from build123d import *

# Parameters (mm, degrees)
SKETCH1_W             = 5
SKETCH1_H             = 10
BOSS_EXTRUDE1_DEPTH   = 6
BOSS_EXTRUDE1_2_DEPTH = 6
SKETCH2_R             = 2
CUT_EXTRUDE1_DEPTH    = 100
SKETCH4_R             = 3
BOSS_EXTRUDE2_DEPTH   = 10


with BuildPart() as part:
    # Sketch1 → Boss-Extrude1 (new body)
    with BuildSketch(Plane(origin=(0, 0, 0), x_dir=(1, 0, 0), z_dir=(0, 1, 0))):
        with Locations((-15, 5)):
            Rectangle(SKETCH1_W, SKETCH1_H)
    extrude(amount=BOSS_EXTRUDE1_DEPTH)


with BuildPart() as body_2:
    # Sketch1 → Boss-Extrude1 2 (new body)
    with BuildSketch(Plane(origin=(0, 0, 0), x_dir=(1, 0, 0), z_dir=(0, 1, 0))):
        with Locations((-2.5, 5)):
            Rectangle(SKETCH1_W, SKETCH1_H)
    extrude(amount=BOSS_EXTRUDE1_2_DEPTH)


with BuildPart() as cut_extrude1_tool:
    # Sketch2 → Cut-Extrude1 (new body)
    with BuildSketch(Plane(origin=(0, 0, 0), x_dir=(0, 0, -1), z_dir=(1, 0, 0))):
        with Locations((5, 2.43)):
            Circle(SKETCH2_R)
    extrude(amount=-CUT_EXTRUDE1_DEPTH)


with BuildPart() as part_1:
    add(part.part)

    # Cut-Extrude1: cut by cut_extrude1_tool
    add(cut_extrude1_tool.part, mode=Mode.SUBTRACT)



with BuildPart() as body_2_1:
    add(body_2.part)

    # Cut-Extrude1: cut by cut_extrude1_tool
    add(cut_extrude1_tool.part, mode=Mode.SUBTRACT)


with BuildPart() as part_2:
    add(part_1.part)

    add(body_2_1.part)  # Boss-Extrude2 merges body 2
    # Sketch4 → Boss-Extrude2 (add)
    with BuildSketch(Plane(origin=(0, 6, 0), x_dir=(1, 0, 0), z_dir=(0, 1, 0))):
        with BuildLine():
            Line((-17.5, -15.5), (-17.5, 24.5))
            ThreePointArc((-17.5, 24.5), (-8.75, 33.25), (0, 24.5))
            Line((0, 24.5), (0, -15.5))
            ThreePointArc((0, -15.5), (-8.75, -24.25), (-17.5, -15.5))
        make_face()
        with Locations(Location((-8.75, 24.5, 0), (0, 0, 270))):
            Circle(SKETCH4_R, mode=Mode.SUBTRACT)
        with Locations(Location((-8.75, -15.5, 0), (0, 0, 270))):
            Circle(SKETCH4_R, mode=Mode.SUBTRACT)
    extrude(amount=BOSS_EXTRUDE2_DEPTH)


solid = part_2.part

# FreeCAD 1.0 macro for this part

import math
import FreeCAD as App
import Part
import Sketcher

V = App.Vector

doc = App.newDocument("Part")
body = doc.addObject("PartDesign::Body", "Body")

sketch1 = body.newObject("Sketcher::SketchObject", "Sketch")
sketch1.AttachmentSupport = (doc.getObject("XZ_Plane"), [""])
sketch1.MapMode = "FlatFace"
sketch1.addGeometry([
    Part.LineSegment(V(-18, -10, 0), V(-18, 0, 0)),
    Part.LineSegment(V(-18, 0, 0), V(-12, 0, 0)),
    Part.LineSegment(V(-12, 0, 0), V(-12, -10, 0)),
    Part.LineSegment(V(-12, -10, 0), V(-18, -10, 0)),
], False)
sketch1.addConstraint([
    Sketcher.Constraint("Coincident", 0, 2, 1, 1),
    Sketcher.Constraint("Coincident", 1, 2, 2, 1),
    Sketcher.Constraint("Coincident", 2, 2, 3, 1),
    Sketcher.Constraint("Coincident", 3, 2, 0, 1),
    Sketcher.Constraint("Vertical", 0),
    Sketcher.Constraint("Horizontal", 1),
    Sketcher.Constraint("Vertical", 2),
    Sketcher.Constraint("Horizontal", 3),
    Sketcher.Constraint("PointOnObject", 0, 2, -1),
    Sketcher.Constraint("DistanceX", 1, 1, 1, 2, 5.0),
    Sketcher.Constraint("DistanceY", 0, 1, 0, 2, 10.0),
    Sketcher.Constraint("DistanceX", 0, 2, -1, 1, 17.5),
])
pad1 = body.newObject("PartDesign::Pad", "Pad")
pad1.Profile = sketch1
pad1.Length = 6
pad1.Reversed = True
body2 = doc.addObject("PartDesign::Body", "Body001")

sketch2 = body2.newObject("Sketcher::SketchObject", "Sketch001")
sketch2.AttachmentSupport = (doc.getObject("XZ_Plane001"), [""])
sketch2.MapMode = "FlatFace"
sketch2.addGeometry([
    Part.LineSegment(V(-5, -10, 0), V(-5, 0, 0)),
    Part.LineSegment(V(-5, 0, 0), V(0, 0, 0)),
    Part.LineSegment(V(0, 0, 0), V(0, -10, 0)),
    Part.LineSegment(V(0, -10, 0), V(-5, -10, 0)),
], False)
sketch2.addConstraint([
    Sketcher.Constraint("Coincident", 0, 2, 1, 1),
    Sketcher.Constraint("Coincident", 1, 2, 2, 1),
    Sketcher.Constraint("Coincident", 2, 2, 3, 1),
    Sketcher.Constraint("Coincident", 3, 2, 0, 1),
    Sketcher.Constraint("Vertical", 0),
    Sketcher.Constraint("Horizontal", 1),
    Sketcher.Constraint("Vertical", 2),
    Sketcher.Constraint("Horizontal", 3),
    Sketcher.Constraint("Coincident", 1, 2, -1, 1),
    Sketcher.Constraint("DistanceX", 1, 1, 1, 2, 5.0),
    Sketcher.Constraint("DistanceY", 0, 1, 0, 2, 10.0),
])
pad2 = body2.newObject("PartDesign::Pad", "Pad001")
pad2.Profile = sketch2
pad2.Length = 6
pad2.Reversed = True
body3 = doc.addObject("PartDesign::Body", "Body002")

sketch3 = body3.newObject("Sketcher::SketchObject", "Sketch002")
sketch3.AttachmentSupport = (doc.getObject("YZ_Plane002"), [""])
sketch3.MapMode = "FlatFace"
sketch3.addGeometry(Part.Circle(V(2.4, -5, 0), V(0, 0, 1), 2), False)
sketch3.addConstraint([
    Sketcher.Constraint("Diameter", 0, 4.0),
    Sketcher.Constraint("DistanceY", 0, 3, -1, 1, 5.0),
    Sketcher.Constraint("DistanceX", -1, 1, 0, 3, 2.43),
])
pad3 = body3.newObject("PartDesign::Pad", "Pad002")
pad3.Profile = sketch3
pad3.Length = 100
pad3.Reversed = True
doc.recompute()

body4 = doc.addObject("PartDesign::Body", "Body003")
body4.BaseFeature = body3
boolean = body.newObject("PartDesign::Boolean", "Boolean")
boolean.Type = "Cut"
boolean.addObjects([body4])
doc.recompute()

boolean2 = body2.newObject("PartDesign::Boolean", "Boolean001")
boolean2.Type = "Cut"
boolean2.addObjects([body3])
body.AllowCompound = True
doc.recompute()

boolean3 = body.newObject("PartDesign::Boolean", "Boolean002")
boolean3.Type = "Fuse"
boolean3.addObjects([body2])

sketch4 = body.newObject("Sketcher::SketchObject", "Sketch003")
sketch4.AttachmentSupport = (doc.getObject("XZ_Plane"), [""])
sketch4.MapMode = "FlatFace"
sketch4.AttachmentOffset = App.Placement(V(0, 0, -6), App.Rotation())
sketch4.addGeometry([
    Part.LineSegment(V(-17.5, -24.5, 0), V(-17.5, 15.5, 0)),
    Part.ArcOfCircle(Part.Circle(V(-8.8, 15.5, 0), V(0, 0, 1), 8.8), math.radians(0), math.radians(180)),
    Part.LineSegment(V(0, 15.5, 0), V(0, -24.5, 0)),
    Part.ArcOfCircle(Part.Circle(V(-8.8, -24.5, 0), V(0, 0, 1), 8.8), math.radians(180), math.radians(360)),
    Part.Circle(V(-8.8, 15.5, 0), V(0, 0, 1), 3),
    Part.Circle(V(-8.8, -24.5, 0), V(0, 0, 1), 3),
], False)
sketch4.addConstraint([
    Sketcher.Constraint("Tangent", 0, 2, 1, 2),
    Sketcher.Constraint("Tangent", 1, 1, 2, 1),
    Sketcher.Constraint("Tangent", 2, 2, 3, 2),
    Sketcher.Constraint("Tangent", 3, 1, 0, 1),
    Sketcher.Constraint("Vertical", 0),
    Sketcher.Constraint("Vertical", 2),
    Sketcher.Constraint("Coincident", 4, 3, 1, 3),
    Sketcher.Constraint("Coincident", 5, 3, 3, 3),
    Sketcher.Constraint("Equal", 4, 5),
    Sketcher.Constraint("PointOnObject", 1, 1, -2),
    Sketcher.Constraint("Diameter", 4, 6.0),
    Sketcher.Constraint("DistanceY", 0, 1, 0, 2, 40.0),
    Sketcher.Constraint("Radius", 1, 8.75),
    Sketcher.Constraint("DistanceY", -1, 1, 1, 3, 15.5),
])
pad4 = body.newObject("PartDesign::Pad", "Pad003")
pad4.Profile = sketch4
pad4.Length = 10
pad4.Reversed = True

doc.recompute()
